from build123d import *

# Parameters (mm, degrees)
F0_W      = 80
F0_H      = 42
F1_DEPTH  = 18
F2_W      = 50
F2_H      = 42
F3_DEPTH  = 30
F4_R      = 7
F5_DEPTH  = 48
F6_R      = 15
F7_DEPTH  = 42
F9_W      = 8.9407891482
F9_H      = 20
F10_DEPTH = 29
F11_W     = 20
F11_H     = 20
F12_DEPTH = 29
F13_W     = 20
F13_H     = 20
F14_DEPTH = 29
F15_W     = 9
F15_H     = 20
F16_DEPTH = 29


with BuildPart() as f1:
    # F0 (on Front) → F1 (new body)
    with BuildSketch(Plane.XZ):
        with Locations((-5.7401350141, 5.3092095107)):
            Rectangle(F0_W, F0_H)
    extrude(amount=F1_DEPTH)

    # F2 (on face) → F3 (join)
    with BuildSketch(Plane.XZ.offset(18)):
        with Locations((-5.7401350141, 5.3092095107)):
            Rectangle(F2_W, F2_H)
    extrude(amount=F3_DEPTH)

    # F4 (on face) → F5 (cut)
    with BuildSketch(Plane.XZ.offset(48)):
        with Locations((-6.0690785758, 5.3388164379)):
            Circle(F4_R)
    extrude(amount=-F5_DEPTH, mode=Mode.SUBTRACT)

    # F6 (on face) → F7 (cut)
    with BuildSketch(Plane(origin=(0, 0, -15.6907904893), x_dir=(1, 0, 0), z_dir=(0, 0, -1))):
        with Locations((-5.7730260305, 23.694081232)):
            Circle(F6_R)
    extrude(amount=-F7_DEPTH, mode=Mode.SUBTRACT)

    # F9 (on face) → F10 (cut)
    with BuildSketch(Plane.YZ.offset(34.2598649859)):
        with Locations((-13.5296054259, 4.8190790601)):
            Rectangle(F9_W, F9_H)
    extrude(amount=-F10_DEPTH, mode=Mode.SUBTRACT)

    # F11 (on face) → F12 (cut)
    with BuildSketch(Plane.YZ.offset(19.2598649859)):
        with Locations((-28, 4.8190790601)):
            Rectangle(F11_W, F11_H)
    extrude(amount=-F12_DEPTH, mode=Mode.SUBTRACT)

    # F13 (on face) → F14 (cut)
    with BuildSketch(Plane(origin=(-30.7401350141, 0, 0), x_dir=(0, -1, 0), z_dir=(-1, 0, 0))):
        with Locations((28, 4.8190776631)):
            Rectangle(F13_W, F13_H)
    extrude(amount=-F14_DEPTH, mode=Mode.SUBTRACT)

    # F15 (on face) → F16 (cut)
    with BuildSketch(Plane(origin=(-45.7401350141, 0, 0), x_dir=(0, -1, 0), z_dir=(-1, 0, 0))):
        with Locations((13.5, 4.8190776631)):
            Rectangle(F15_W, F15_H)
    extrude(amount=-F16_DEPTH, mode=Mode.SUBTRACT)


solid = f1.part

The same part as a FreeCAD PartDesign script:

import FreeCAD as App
import Part
import Sketcher

doc = App.newDocument("Part")
body = doc.addObject("PartDesign::Body", "Body")

# Sketch on XZ plane
sketch1 = body.newObject("Sketcher::SketchObject", "Sketch")
sketch1.AttachmentSupport = (doc.getObject("XZ_Plane"), [""])
sketch1.MapMode = "FlatFace"
sketch1.addGeometry([
    Part.LineSegment(App.Vector(-46, 26, 0), App.Vector(-46, -16, 0)),
    Part.LineSegment(App.Vector(-46, -16, 0), App.Vector(34, -16, 0)),
    Part.LineSegment(App.Vector(34, -16, 0), App.Vector(34, 26, 0)),
    Part.LineSegment(App.Vector(34, 26, 0), App.Vector(-46, 26, 0)),
], False)
sketch1.addConstraint([
    Sketcher.Constraint("Coincident", 0, 2, 1, 1),
    Sketcher.Constraint("Coincident", 1, 2, 2, 1),
    Sketcher.Constraint("Coincident", 2, 2, 3, 1),
    Sketcher.Constraint("Coincident", 3, 2, 0, 1),
    Sketcher.Constraint("Vertical", 0),
    Sketcher.Constraint("Horizontal", 1),
    Sketcher.Constraint("Vertical", 2),
    Sketcher.Constraint("Horizontal", 3),
    Sketcher.Constraint("DistanceX", 1, 1, 1, 2, 80.0),
    Sketcher.Constraint("DistanceY", 0, 2, 0, 1, 42.0),
    Sketcher.Constraint("DistanceY", 0, 2, -1, 1, 15.69079),
    Sketcher.Constraint("DistanceX", 0, 2, -1, 1, 45.740135),
])
pad1 = body.newObject("PartDesign::Pad", "Pad")
pad1.Profile = sketch1
pad1.Length = 18

# Sketch on XZ plane
sketch2 = body.newObject("Sketcher::SketchObject", "Sketch001")
sketch2.AttachmentSupport = (doc.getObject("XZ_Plane"), [""])
sketch2.MapMode = "FlatFace"
sketch2.AttachmentOffset = App.Placement(App.Vector(0, 0, 18), App.Rotation())
sketch2.addGeometry([
    Part.LineSegment(App.Vector(-31, 26, 0), App.Vector(-31, -16, 0)),
    Part.LineSegment(App.Vector(-31, -16, 0), App.Vector(19, -16, 0)),
    Part.LineSegment(App.Vector(19, -16, 0), App.Vector(19, 26, 0)),
    Part.LineSegment(App.Vector(19, 26, 0), App.Vector(-31, 26, 0)),
], False)
sketch2.addConstraint([
    Sketcher.Constraint("Coincident", 0, 2, 1, 1),
    Sketcher.Constraint("Coincident", 1, 2, 2, 1),
    Sketcher.Constraint("Coincident", 2, 2, 3, 1),
    Sketcher.Constraint("Coincident", 3, 2, 0, 1),
    Sketcher.Constraint("Vertical", 0),
    Sketcher.Constraint("Horizontal", 1),
    Sketcher.Constraint("Vertical", 2),
    Sketcher.Constraint("Horizontal", 3),
    Sketcher.Constraint("DistanceX", 1, 1, 1, 2, 50.0),
    Sketcher.Constraint("DistanceY", 0, 2, 0, 1, 42.0),
    Sketcher.Constraint("DistanceY", 0, 2, -1, 1, 15.69079),
    Sketcher.Constraint("DistanceX", 0, 2, -1, 1, 30.740135),
])
pad2 = body.newObject("PartDesign::Pad", "Pad001")
pad2.Profile = sketch2
pad2.Length = 30

# Sketch on XZ plane
sketch3 = body.newObject("Sketcher::SketchObject", "Sketch002")
sketch3.AttachmentSupport = (doc.getObject("XZ_Plane"), [""])
sketch3.MapMode = "FlatFace"
sketch3.AttachmentOffset = App.Placement(App.Vector(0, 0, 48), App.Rotation())
sketch3.addGeometry(Part.Circle(App.Vector(-6, 5, 0), App.Vector(0, 0, 1), 7), False)
sketch3.addConstraint([
    Sketcher.Constraint("Diameter", 0, 14.0),
    Sketcher.Constraint("DistanceX", 0, 3, -1, 1, 6.069079),
    Sketcher.Constraint("DistanceY", -1, 1, 0, 3, 5.338816),
])
pocket1 = body.newObject("PartDesign::Pocket", "Pocket")
pocket1.Profile = sketch3
pocket1.Length = 48

# Sketch on XY plane
sketch4 = body.newObject("Sketcher::SketchObject", "Sketch003")
sketch4.AttachmentSupport = (doc.getObject("XY_Plane"), [""])
sketch4.MapMode = "FlatFace"
sketch4.AttachmentOffset = App.Placement(App.Vector(0, 0, -15.69079), App.Rotation())
sketch4.addGeometry(Part.Circle(App.Vector(-6, -24, 0), App.Vector(0, 0, 1), 15), False)
sketch4.addConstraint([
    Sketcher.Constraint("Diameter", 0, 30.0),
    Sketcher.Constraint("DistanceY", 0, 3, -1, 1, 23.694081),
    Sketcher.Constraint("DistanceX", 0, 3, -1, 1, 5.773026),
])
pocket2 = body.newObject("PartDesign::Pocket", "Pocket001")
pocket2.Profile = sketch4
pocket2.Length = 42
pocket2.Reversed = True

# Sketch on YZ plane
sketch5 = body.newObject("Sketcher::SketchObject", "Sketch004")
sketch5.AttachmentSupport = (doc.getObject("YZ_Plane"), [""])
sketch5.MapMode = "FlatFace"
sketch5.AttachmentOffset = App.Placement(App.Vector(0, 0, 34.259865), App.Rotation())
sketch5.addGeometry([
    Part.LineSegment(App.Vector(-18, 15, 0), App.Vector(-18, -5, 0)),
    Part.LineSegment(App.Vector(-18, -5, 0), App.Vector(-9, -5, 0)),
    Part.LineSegment(App.Vector(-9, -5, 0), App.Vector(-9, 15, 0)),
    Part.LineSegment(App.Vector(-9, 15, 0), App.Vector(-18, 15, 0)),
], False)
sketch5.addConstraint([
    Sketcher.Constraint("Coincident", 0, 2, 1, 1),
    Sketcher.Constraint("Coincident", 1, 2, 2, 1),
    Sketcher.Constraint("Coincident", 2, 2, 3, 1),
    Sketcher.Constraint("Coincident", 3, 2, 0, 1),
    Sketcher.Constraint("Vertical", 0),
    Sketcher.Constraint("Horizontal", 1),
    Sketcher.Constraint("Vertical", 2),
    Sketcher.Constraint("Horizontal", 3),
    Sketcher.Constraint("DistanceY", 0, 2, 0, 1, 20.0),
    Sketcher.Constraint("DistanceX", 0, 2, -1, 1, 18.0),
    Sketcher.Constraint("DistanceX", 1, 1, 1, 2, 8.940789),
    Sketcher.Constraint("DistanceY", 0, 2, -1, 1, 5.180921),
])
pocket3 = body.newObject("PartDesign::Pocket", "Pocket002")
pocket3.Profile = sketch5
pocket3.Length = 29

# Sketch on YZ plane
sketch6 = body.newObject("Sketcher::SketchObject", "Sketch005")
sketch6.AttachmentSupport = (doc.getObject("YZ_Plane"), [""])
sketch6.MapMode = "FlatFace"
sketch6.AttachmentOffset = App.Placement(App.Vector(0, 0, 19.259865), App.Rotation())
sketch6.addGeometry([
    Part.LineSegment(App.Vector(-38, 15, 0), App.Vector(-38, -5, 0)),
    Part.LineSegment(App.Vector(-38, -5, 0), App.Vector(-18, -5, 0)),
    Part.LineSegment(App.Vector(-18, -5, 0), App.Vector(-18, 15, 0)),
    Part.LineSegment(App.Vector(-18, 15, 0), App.Vector(-38, 15, 0)),
], False)
sketch6.addConstraint([
    Sketcher.Constraint("Coincident", 0, 2, 1, 1),
    Sketcher.Constraint("Coincident", 1, 2, 2, 1),
    Sketcher.Constraint("Coincident", 2, 2, 3, 1),
    Sketcher.Constraint("Coincident", 3, 2, 0, 1),
    Sketcher.Constraint("Vertical", 0),
    Sketcher.Constraint("Horizontal", 1),
    Sketcher.Constraint("Vertical", 2),
    Sketcher.Constraint("Horizontal", 3),
    Sketcher.Constraint("Equal", 3, 0),
    Sketcher.Constraint("DistanceX", 1, 1, 1, 2, 20.0),
    Sketcher.Constraint("DistanceX", 0, 2, -1, 1, 38.0),
    Sketcher.Constraint("DistanceY", 0, 2, -1, 1, 5.180921),
])
pocket4 = body.newObject("PartDesign::Pocket", "Pocket003")
pocket4.Profile = sketch6
pocket4.Length = 29

# Sketch on YZ plane
sketch7 = body.newObject("Sketcher::SketchObject", "Sketch006")
sketch7.AttachmentSupport = (doc.getObject("YZ_Plane"), [""])
sketch7.MapMode = "FlatFace"
sketch7.AttachmentOffset = App.Placement(App.Vector(0, 0, -30.740135), App.Rotation())
sketch7.addGeometry([
    Part.LineSegment(App.Vector(-18, 15, 0), App.Vector(-18, -5, 0)),
    Part.LineSegment(App.Vector(-18, -5, 0), App.Vector(-38, -5, 0)),
    Part.LineSegment(App.Vector(-38, -5, 0), App.Vector(-38, 15, 0)),
    Part.LineSegment(App.Vector(-38, 15, 0), App.Vector(-18, 15, 0)),
], False)
sketch7.addConstraint([
    Sketcher.Constraint("Coincident", 0, 2, 1, 1),
    Sketcher.Constraint("Coincident", 1, 2, 2, 1),
    Sketcher.Constraint("Coincident", 2, 2, 3, 1),
    Sketcher.Constraint("Coincident", 3, 2, 0, 1),
    Sketcher.Constraint("Vertical", 0),
    Sketcher.Constraint("Horizontal", 1),
    Sketcher.Constraint("Vertical", 2),
    Sketcher.Constraint("Horizontal", 3),
    Sketcher.Constraint("Equal", 3, 0),
    Sketcher.Constraint("DistanceX", 1, 2, 1, 1, 20.0),
    Sketcher.Constraint("DistanceX", 0, 2, -1, 1, 18.0),
    Sketcher.Constraint("DistanceY", 0, 2, -1, 1, 5.180922),
])
pocket5 = body.newObject("PartDesign::Pocket", "Pocket004")
pocket5.Profile = sketch7
pocket5.Length = 29
pocket5.Reversed = True

# Sketch on YZ plane
sketch8 = body.newObject("Sketcher::SketchObject", "Sketch007")
sketch8.AttachmentSupport = (doc.getObject("YZ_Plane"), [""])
sketch8.MapMode = "FlatFace"
sketch8.AttachmentOffset = App.Placement(App.Vector(0, 0, -45.740135), App.Rotation())
sketch8.addGeometry([
    Part.LineSegment(App.Vector(-9, 15, 0), App.Vector(-9, -5, 0)),
    Part.LineSegment(App.Vector(-9, -5, 0), App.Vector(-18, -5, 0)),
    Part.LineSegment(App.Vector(-18, -5, 0), App.Vector(-18, 15, 0)),
    Part.LineSegment(App.Vector(-18, 15, 0), App.Vector(-9, 15, 0)),
], False)
sketch8.addConstraint([
    Sketcher.Constraint("Coincident", 0, 2, 1, 1),
    Sketcher.Constraint("Coincident", 1, 2, 2, 1),
    Sketcher.Constraint("Coincident", 2, 2, 3, 1),
    Sketcher.Constraint("Coincident", 3, 2, 0, 1),
    Sketcher.Constraint("Vertical", 0),
    Sketcher.Constraint("Horizontal", 1),
    Sketcher.Constraint("Vertical", 2),
    Sketcher.Constraint("Horizontal", 3),
    Sketcher.Constraint("DistanceX", 1, 2, 1, 1, 9.0),
    Sketcher.Constraint("DistanceY", 0, 2, 0, 1, 20.0),
    Sketcher.Constraint("DistanceX", 0, 2, -1, 1, 9.0),
    Sketcher.Constraint("DistanceY", 0, 2, -1, 1, 5.180922),
])
pocket6 = body.newObject("PartDesign::Pocket", "Pocket005")
pocket6.Profile = sketch8
pocket6.Length = 29
pocket6.Reversed = True

doc.recompute()
